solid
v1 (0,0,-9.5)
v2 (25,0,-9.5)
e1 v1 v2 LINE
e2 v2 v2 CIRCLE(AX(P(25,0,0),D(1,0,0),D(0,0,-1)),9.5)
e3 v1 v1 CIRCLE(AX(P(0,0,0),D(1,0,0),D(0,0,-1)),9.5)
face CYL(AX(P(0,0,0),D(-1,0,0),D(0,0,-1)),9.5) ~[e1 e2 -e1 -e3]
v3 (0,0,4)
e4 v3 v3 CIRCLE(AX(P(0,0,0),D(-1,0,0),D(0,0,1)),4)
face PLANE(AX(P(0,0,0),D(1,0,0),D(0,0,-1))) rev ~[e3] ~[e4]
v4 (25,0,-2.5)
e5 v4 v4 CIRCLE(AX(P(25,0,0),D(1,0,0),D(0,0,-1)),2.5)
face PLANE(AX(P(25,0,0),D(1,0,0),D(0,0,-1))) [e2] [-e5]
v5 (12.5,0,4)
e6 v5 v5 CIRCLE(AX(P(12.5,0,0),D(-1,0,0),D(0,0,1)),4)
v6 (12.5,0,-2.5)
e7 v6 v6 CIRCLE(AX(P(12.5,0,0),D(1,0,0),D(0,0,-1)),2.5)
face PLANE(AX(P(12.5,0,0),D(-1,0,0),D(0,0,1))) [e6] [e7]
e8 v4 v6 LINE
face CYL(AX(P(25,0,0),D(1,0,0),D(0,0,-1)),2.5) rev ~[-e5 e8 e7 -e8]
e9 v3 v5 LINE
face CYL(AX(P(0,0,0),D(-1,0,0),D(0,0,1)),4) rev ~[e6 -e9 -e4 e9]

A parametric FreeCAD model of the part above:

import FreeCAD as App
import Part
import Sketcher

V = App.Vector
Q = App.Units.Quantity

doc = App.newDocument("Part")
body = doc.addObject("PartDesign::Body", "Body")

# Sketch on YZ plane
sketch1 = doc.addObject("Sketcher::SketchObject", "Sketch")
body.addObject(sketch1)
sketch1.AttachmentSupport = (doc.YZ_Plane, [""])
sketch1.MapMode = "FlatFace"
sketch1.addGeometry(Part.Circle(V(0, 0, 0), V(0, 0, 1), 9.5), False)
sketch1.addConstraint([
    Sketcher.Constraint("Coincident", 0, 3, -1, 1),
    Sketcher.Constraint("Diameter", 0, Q("19 mm")),
])
pad1 = doc.addObject("PartDesign::Pad", "Pad")
body.addObject(pad1)
pad1.Profile = sketch1
pad1.Length = 25

# Sketch on YZ plane
sketch2 = doc.addObject("Sketcher::SketchObject", "Sketch001")
body.addObject(sketch2)
sketch2.AttachmentSupport = (doc.YZ_Plane, [""])
sketch2.MapMode = "FlatFace"
sketch2.AttachmentOffset = App.Placement(V(0, 0, 25), App.Rotation())
sketch2.addGeometry(Part.Circle(V(0, 0, 0), V(0, 0, 1), 2.5), False)
sketch2.addConstraint([
    Sketcher.Constraint("Coincident", 0, 3, -1, 1),
    Sketcher.Constraint("Diameter", 0, Q("5 mm")),
])
pocket1 = doc.addObject("PartDesign::Pocket", "Pocket")
body.addObject(pocket1)
pocket1.Profile = sketch2
pocket1.Length = 12.5

# Sketch on YZ plane
sketch3 = doc.addObject("Sketcher::SketchObject", "Sketch002")
body.addObject(sketch3)
sketch3.AttachmentSupport = (doc.YZ_Plane, [""])
sketch3.MapMode = "FlatFace"
sketch3.addGeometry(Part.Circle(V(0, 0, 0), V(0, 0, 1), 4), False)
sketch3.addConstraint([
    Sketcher.Constraint("Coincident", 0, 3, -1, 1),
    Sketcher.Constraint("Diameter", 0, Q("8 mm")),
])
pocket2 = doc.addObject("PartDesign::Pocket", "Pocket001")
body.addObject(pocket2)
pocket2.Profile = sketch3
pocket2.Length = 12.5
pocket2.Reversed = True

doc.recompute()
